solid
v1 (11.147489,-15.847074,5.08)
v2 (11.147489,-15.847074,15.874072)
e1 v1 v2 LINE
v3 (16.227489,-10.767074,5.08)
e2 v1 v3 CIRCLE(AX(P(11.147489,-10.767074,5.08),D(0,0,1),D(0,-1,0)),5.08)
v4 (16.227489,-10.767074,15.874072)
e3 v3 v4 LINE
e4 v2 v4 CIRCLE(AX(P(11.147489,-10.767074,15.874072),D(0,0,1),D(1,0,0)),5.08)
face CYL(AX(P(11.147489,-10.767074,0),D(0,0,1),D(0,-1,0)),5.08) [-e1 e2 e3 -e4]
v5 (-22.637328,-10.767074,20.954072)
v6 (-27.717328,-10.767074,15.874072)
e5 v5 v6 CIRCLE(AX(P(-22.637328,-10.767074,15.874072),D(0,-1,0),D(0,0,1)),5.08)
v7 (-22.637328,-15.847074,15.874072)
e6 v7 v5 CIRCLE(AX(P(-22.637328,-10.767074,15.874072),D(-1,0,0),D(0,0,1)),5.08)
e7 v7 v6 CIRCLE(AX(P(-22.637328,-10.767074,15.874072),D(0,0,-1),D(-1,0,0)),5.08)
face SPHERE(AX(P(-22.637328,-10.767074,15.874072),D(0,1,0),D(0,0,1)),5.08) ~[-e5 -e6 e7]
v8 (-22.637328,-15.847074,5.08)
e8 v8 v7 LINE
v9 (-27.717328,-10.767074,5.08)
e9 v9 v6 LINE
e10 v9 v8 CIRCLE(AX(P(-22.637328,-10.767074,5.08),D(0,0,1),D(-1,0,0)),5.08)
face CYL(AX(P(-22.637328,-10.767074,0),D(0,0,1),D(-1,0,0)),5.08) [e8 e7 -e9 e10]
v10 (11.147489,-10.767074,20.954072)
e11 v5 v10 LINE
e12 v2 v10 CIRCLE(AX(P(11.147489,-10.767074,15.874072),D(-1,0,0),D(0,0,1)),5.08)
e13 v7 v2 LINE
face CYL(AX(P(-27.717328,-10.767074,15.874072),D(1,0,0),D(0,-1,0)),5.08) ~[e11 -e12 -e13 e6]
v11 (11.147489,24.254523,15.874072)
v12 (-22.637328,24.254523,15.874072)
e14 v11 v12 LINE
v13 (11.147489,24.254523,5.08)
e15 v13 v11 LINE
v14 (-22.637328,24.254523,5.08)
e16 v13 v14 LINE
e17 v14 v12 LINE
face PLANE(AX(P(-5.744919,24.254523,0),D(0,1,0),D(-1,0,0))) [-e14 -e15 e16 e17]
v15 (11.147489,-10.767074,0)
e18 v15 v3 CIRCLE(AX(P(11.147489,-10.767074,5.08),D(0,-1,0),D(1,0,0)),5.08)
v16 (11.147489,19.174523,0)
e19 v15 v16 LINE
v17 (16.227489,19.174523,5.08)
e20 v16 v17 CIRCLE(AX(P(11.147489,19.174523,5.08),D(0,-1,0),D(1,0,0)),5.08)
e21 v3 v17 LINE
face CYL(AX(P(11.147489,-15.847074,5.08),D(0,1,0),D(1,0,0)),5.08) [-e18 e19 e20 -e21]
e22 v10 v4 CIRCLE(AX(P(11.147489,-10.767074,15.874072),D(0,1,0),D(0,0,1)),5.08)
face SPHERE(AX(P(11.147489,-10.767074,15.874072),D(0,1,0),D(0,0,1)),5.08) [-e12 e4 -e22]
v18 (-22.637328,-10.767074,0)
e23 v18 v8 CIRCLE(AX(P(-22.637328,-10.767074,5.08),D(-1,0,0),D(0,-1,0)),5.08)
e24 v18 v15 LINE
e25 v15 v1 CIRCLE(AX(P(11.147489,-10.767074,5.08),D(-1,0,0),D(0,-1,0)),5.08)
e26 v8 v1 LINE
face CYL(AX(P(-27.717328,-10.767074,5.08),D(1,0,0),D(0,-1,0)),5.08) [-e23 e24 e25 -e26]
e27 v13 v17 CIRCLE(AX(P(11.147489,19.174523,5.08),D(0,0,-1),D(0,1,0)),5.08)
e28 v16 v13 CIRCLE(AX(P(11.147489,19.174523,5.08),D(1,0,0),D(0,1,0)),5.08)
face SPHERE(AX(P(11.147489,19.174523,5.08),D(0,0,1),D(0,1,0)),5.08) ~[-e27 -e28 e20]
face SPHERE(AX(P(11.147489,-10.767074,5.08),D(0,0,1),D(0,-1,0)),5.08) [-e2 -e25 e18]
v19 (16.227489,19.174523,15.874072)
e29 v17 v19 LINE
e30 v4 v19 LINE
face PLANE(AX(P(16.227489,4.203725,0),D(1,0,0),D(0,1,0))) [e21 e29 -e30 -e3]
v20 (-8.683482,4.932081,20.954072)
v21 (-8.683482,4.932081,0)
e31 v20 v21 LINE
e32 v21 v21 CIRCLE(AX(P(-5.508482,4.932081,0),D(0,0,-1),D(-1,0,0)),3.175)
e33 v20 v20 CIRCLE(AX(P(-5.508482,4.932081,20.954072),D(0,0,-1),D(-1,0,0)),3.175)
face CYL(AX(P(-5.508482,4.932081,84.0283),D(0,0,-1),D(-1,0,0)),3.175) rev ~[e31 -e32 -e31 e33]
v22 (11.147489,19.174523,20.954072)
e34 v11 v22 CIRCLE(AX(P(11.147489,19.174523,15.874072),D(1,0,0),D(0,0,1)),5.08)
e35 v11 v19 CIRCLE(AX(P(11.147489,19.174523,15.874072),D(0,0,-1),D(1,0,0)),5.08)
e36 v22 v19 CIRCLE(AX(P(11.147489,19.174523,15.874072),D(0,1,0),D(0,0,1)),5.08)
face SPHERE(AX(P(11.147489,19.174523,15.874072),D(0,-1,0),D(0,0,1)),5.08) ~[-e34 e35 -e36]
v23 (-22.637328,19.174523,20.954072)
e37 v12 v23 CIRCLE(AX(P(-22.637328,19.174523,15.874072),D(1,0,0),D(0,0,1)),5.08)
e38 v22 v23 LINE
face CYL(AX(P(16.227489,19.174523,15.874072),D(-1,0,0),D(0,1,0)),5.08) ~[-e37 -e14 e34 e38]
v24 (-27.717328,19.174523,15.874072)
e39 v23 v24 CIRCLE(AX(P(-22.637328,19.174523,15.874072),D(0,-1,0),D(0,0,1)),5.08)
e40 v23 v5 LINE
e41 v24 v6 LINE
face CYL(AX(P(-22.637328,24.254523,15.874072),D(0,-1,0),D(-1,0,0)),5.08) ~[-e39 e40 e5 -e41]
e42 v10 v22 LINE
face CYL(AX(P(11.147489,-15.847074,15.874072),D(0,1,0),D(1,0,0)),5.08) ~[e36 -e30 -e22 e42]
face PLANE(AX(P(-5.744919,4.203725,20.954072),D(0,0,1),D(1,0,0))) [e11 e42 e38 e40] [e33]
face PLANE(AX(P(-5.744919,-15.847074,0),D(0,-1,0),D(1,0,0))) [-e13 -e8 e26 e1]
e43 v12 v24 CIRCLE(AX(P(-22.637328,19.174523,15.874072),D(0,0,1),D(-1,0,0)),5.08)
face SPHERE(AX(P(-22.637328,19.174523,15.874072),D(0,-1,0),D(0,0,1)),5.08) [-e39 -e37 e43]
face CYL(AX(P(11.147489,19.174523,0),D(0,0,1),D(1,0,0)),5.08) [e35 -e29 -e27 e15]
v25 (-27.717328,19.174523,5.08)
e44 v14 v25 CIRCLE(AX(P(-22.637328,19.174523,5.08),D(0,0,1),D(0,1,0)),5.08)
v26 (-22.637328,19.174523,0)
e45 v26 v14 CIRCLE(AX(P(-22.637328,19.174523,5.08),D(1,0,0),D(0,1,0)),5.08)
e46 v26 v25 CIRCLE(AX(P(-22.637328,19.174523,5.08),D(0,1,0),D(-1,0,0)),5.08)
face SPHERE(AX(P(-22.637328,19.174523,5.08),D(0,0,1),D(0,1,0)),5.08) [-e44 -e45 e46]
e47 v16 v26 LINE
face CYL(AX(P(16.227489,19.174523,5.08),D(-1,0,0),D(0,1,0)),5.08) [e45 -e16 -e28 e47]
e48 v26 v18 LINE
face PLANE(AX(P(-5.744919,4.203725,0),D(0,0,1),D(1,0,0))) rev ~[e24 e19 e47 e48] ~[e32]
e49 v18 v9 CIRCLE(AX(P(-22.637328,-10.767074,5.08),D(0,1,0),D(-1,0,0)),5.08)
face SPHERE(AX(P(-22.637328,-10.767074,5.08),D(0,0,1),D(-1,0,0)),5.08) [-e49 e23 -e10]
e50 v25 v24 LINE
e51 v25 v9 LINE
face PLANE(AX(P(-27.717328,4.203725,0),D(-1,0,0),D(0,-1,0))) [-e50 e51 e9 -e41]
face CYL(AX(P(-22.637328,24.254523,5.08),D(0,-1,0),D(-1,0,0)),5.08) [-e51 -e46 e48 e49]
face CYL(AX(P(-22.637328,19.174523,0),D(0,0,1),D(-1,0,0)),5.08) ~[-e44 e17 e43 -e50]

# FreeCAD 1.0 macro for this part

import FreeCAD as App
import Part
import Sketcher

V = App.Vector
Q = App.Units.Quantity


def add_polygon(sketch, points):
    """Adds a closed chain of lines whose ends are joined by coincident constraints."""
    first, n = sketch.GeometryCount, len(points)
    for a, b in zip(points, points[1:] + points[:1]):
        sketch.addGeometry(Part.LineSegment(App.Vector(*a, 0), App.Vector(*b, 0)), False)
    for i in range(n):
        sketch.addConstraint(Sketcher.Constraint("Coincident", first + i, 2, first + (i + 1) % n, 1))

doc = App.newDocument("Part")
body = doc.addObject("PartDesign::Body", "Body")

# Sketch on XY plane
sketch1 = body.newObject("Sketcher::SketchObject", "Sketch")
sketch1.AttachmentSupport = (doc.getObject("XY_Plane"), [""])
sketch1.MapMode = "FlatFace"
add_polygon(sketch1, [(-28, 24), (-28, -16), (16, -16), (16, 24)])  # lines 0-3
sketch1.addConstraint([
    Sketcher.Constraint("Vertical", 0),
    Sketcher.Constraint("Horizontal", 1),
    Sketcher.Constraint("Vertical", 2),
    Sketcher.Constraint("Horizontal", 3),
    Sketcher.Constraint("DistanceX", 1, 1, 1, 2, 43.944817),
    Sketcher.Constraint("DistanceY", 0, 2, 0, 1, 40.101597),
    Sketcher.Constraint("DistanceX", -1, 1, 1, 2, 16.227489),
    Sketcher.Constraint("DistanceY", 0, 2, -1, 1, 15.847074),
])

# Sketch on XZ plane
sketch2 = body.newObject("Sketcher::SketchObject", "Sketch001")
sketch2.AttachmentSupport = (doc.getObject("XZ_Plane"), [""])
sketch2.MapMode = "FlatFace"
sketch2.addGeometry(Part.LineSegment(V(0, 0, 0), V(0, 21, 0)), False)
sketch2.addConstraint([
    Sketcher.Constraint("Vertical", 0),
    Sketcher.Constraint("Coincident", 0, 1, -1, 1),
    Sketcher.Constraint("DistanceY", 0, 1, 0, 2, 20.954072),
])
doc.recompute()

additivepipe = body.newObject("PartDesign::AdditivePipe", "AdditivePipe")
additivepipe.Profile = sketch1
additivepipe.Spine = (sketch2, ["Edge1"])
doc.recompute()

fillet = body.newObject("PartDesign::Fillet", "Fillet")
fillet.Base = (additivepipe, ["Edge1"])
fillet.UseAllEdges = True
fillet.Radius = Q("0.2 in")

# Sketch on XY plane
sketch3 = body.newObject("Sketcher::SketchObject", "Sketch002")
sketch3.AttachmentSupport = (doc.getObject("XY_Plane"), [""])
sketch3.MapMode = "FlatFace"
sketch3.AttachmentOffset = App.Placement(V(0, 0, 20.954072), App.Rotation())
sketch3.addGeometry(Part.Circle(V(-5.5, 4.9, 0), V(0, 0, 1), 3.2), False)
sketch3.addConstraint([
    Sketcher.Constraint("Diameter", 0, Q("0.25 in")),
    Sketcher.Constraint("DistanceX", 0, 3, -1, 1, 5.508482),
    Sketcher.Constraint("DistanceY", -1, 1, 0, 3, 4.932081),
])
doc.recompute()
hole = body.newObject("PartDesign::Hole", "Hole")
hole.Profile = sketch3
hole.ThreadType = "None"
hole.Diameter = Q("0.25 in")
hole.DepthType = "ThroughAll"

doc.recompute()
